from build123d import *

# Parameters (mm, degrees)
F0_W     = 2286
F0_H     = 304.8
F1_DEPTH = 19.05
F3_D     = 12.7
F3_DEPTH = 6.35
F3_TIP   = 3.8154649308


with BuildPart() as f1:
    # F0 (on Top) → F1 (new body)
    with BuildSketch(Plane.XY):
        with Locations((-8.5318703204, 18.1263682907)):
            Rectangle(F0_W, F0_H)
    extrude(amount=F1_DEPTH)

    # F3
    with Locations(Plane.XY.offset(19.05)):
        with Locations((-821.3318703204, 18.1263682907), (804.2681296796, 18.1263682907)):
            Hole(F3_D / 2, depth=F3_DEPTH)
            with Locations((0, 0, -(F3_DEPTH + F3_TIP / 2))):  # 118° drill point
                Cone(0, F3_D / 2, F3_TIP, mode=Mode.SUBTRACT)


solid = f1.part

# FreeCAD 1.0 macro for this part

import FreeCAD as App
import Part
import Sketcher
Q = App.Units.Quantity


def add_polygon(sketch, points):
    """Adds a closed chain of lines whose ends are joined by coincident constraints."""
    first, n = sketch.GeometryCount, len(points)
    for a, b in zip(points, points[1:] + points[:1]):
        sketch.addGeometry(Part.LineSegment(App.Vector(*a, 0), App.Vector(*b, 0)), False)
    for i in range(n):
        sketch.addConstraint(Sketcher.Constraint("Coincident", first + i, 2, first + (i + 1) % n, 1))

doc = App.newDocument("Part")
params = doc.addObject("Spreadsheet::Sheet", "Params")
for row, (alias, value) in enumerate([
    ("sketch1_width", "90 in"),
    ("sketch1_height", "12 in"),
    ("pad1_length", "0.75 in"),
    ("sketch2_diameter", "0.5 in"),
    ("hole_diameter", "0.5 in"),
    ("hole_depth", "0.25 in"),
], start=1):
    params.set(f"A{row}", alias)
    params.set(f"B{row}", "=" + value)
    params.setAlias(f"B{row}", alias)

body = doc.addObject("PartDesign::Body", "Body")

# Sketch on XY plane
sketch1 = body.newObject("Sketcher::SketchObject", "Sketch")
sketch1.AttachmentSupport = (doc.getObject("XY_Plane"), [""])
sketch1.MapMode = "FlatFace"
add_polygon(sketch1, [(-1152, 171), (-1152, -134), (1134, -134), (1134, 171)])  # lines 0-3
sketch1.addConstraint(Sketcher.Constraint("Vertical", 0))
sketch1.addConstraint(Sketcher.Constraint("Horizontal", 1))
sketch1.addConstraint(Sketcher.Constraint("Vertical", 2))
sketch1.addConstraint(Sketcher.Constraint("Horizontal", 3))
sketch1.addConstraint(Sketcher.Constraint("DistanceX", 1, 1, 1, 2, Q("90 in")))
sketch1.addConstraint(Sketcher.Constraint("DistanceY", 0, 2, 0, 1, Q("12 in")))
sketch1.addConstraint(Sketcher.Constraint("DistanceX", 0, 2, -1, 1, Q("1151.53187 mm")))
sketch1.addConstraint(Sketcher.Constraint("DistanceY", 0, 2, -1, 1, Q("134.273632 mm")))
sketch1.setExpression("Constraints[8]", "Params.sketch1_width")
sketch1.setExpression("Constraints[9]", "Params.sketch1_height")
pad1 = body.newObject("PartDesign::Pad", "Pad")
pad1.Profile = sketch1
pad1.setExpression("Length", "Params.pad1_length")

# Sketch on XY plane
sketch2 = body.newObject("Sketcher::SketchObject", "Sketch001")
sketch2.AttachmentSupport = (doc.getObject("XY_Plane"), [""])
sketch2.MapMode = "FlatFace"
sketch2.AttachmentOffset = App.Placement(App.Vector(0, 0, 0.75 * 25.4), App.Rotation())
sketch2.addGeometry(Part.Circle(App.Vector(-821, 18, 0), App.Vector(0, 0, 1), 6), False)
sketch2.addGeometry(Part.Circle(App.Vector(804, 18, 0), App.Vector(0, 0, 1), 6), False)
sketch2.addConstraint(Sketcher.Constraint("Equal", 0, 1))
sketch2.addConstraint(Sketcher.Constraint("Horizontal", 0, 3, 1, 3))
sketch2.addConstraint(Sketcher.Constraint("Diameter", 0, Q("0.5 in")))
sketch2.addConstraint(Sketcher.Constraint("DistanceX", 0, 3, 1, 3, Q("64 in")))
sketch2.addConstraint(Sketcher.Constraint("DistanceX", 0, 3, -1, 1, Q("821.33187 mm")))
sketch2.addConstraint(Sketcher.Constraint("DistanceY", -1, 1, 0, 3, Q("18.126368 mm")))
sketch2.setExpression("Constraints[2]", "Params.sketch2_diameter")
doc.recompute()
hole = body.newObject("PartDesign::Hole", "Hole")
hole.Profile = sketch2
hole.ThreadType = "None"
hole.setExpression("Diameter", "Params.hole_diameter")
hole.DepthType = "Dimension"
hole.setExpression("Depth", "Params.hole_depth")
hole.DrillPoint = "Angled"
hole.DrillPointAngle = 118

doc.recompute()
